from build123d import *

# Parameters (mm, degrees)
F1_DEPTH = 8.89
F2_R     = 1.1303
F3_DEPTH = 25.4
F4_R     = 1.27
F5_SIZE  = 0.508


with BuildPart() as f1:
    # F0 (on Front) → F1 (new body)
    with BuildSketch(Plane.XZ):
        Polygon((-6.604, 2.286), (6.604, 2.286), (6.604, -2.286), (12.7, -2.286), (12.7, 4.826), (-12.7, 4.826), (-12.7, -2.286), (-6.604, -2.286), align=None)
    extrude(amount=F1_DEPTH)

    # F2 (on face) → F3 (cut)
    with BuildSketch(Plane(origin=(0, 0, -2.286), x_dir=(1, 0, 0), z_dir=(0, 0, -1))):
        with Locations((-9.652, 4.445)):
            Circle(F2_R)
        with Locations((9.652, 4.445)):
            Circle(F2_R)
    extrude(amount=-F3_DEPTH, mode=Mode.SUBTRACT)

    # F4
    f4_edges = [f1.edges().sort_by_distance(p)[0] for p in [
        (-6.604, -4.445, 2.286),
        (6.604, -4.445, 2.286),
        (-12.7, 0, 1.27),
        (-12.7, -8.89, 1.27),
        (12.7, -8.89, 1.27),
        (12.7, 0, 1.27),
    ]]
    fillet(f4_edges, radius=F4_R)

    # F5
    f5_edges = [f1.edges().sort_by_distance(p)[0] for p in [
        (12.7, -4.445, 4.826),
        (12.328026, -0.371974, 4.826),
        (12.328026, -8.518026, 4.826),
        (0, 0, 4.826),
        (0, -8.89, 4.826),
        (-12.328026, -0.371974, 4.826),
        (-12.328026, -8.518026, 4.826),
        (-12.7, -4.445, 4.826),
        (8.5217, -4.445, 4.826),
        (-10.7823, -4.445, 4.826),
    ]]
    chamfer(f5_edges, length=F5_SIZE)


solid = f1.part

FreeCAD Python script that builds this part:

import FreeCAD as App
import Part
import Sketcher
Q = App.Units.Quantity


def edges_at(feature, points):
    """Names of the edges that pass closest to the given points."""
    edges = feature.Shape.Edges
    near = lambda p: min(range(len(edges)), key=lambda i: edges[i].distToShape(Part.Vertex(*p))[0])
    return sorted({f"Edge{near(p) + 1}" for p in points})

doc = App.newDocument("Part")
params = doc.addObject("Spreadsheet::Sheet", "Params")
for row, (alias, value) in enumerate([
    ("sketch1_width", "1 in"),
    ("sketch1_width2", "0.52 in"),
    ("sketch1_height", "0.18 in"),
    ("sketch1_height2", "0.28 in"),
    ("pad1_length", "0.35 in"),
    ("sketch2_diameter", "0.089 in"),
    ("pocket1_length", "1 in"),
    ("fillet_radius", "0.05 in"),
    ("chamfer_size", "0.02 in"),
], start=1):
    params.set(f"A{row}", alias)
    params.set(f"B{row}", "=" + value)
    params.setAlias(f"B{row}", alias)

body = doc.addObject("PartDesign::Body", "Body")

sketch1 = body.newObject("Sketcher::SketchObject", "Sketch")
sketch1.AttachmentSupport = (doc.getObject("XZ_Plane"), [""])
sketch1.MapMode = "FlatFace"
sketch1.addGeometry([
    Part.LineSegment(App.Vector(-6.6, 2.3, 0), App.Vector(6.6, 2.3, 0)),
    Part.LineSegment(App.Vector(6.6, 2.3, 0), App.Vector(6.6, -2.3, 0)),
    Part.LineSegment(App.Vector(6.6, -2.3, 0), App.Vector(12.7, -2.3, 0)),
    Part.LineSegment(App.Vector(12.7, -2.3, 0), App.Vector(12.7, 4.8, 0)),
    Part.LineSegment(App.Vector(12.7, 4.8, 0), App.Vector(-12.7, 4.8, 0)),
    Part.LineSegment(App.Vector(-12.7, 4.8, 0), App.Vector(-12.7, -2.3, 0)),
    Part.LineSegment(App.Vector(-12.7, -2.3, 0), App.Vector(-6.6, -2.3, 0)),
    Part.LineSegment(App.Vector(-6.6, -2.3, 0), App.Vector(-6.6, 2.3, 0)),
], False)
sketch1.addConstraint([
    Sketcher.Constraint("Coincident", 0, 2, 1, 1),
    Sketcher.Constraint("Coincident", 1, 2, 2, 1),
    Sketcher.Constraint("Coincident", 2, 2, 3, 1),
    Sketcher.Constraint("Coincident", 3, 2, 4, 1),
    Sketcher.Constraint("Coincident", 4, 2, 5, 1),
    Sketcher.Constraint("Coincident", 5, 2, 6, 1),
    Sketcher.Constraint("Coincident", 6, 2, 7, 1),
    Sketcher.Constraint("Coincident", 7, 2, 0, 1),
    Sketcher.Constraint("Horizontal", 0),
    Sketcher.Constraint("Vertical", 1),
    Sketcher.Constraint("Horizontal", 2),
    Sketcher.Constraint("Vertical", 3),
    Sketcher.Constraint("Horizontal", 4),
    Sketcher.Constraint("Vertical", 5),
    Sketcher.Constraint("Horizontal", 6),
    Sketcher.Constraint("Vertical", 7),
    Sketcher.Constraint("Symmetric", 0, 2, 6, 2, -1, 1),
    Sketcher.Constraint("Symmetric", 2, 2, 5, 2, -2),
    Sketcher.Constraint("DistanceX", 4, 2, 4, 1, Q("1 in")),
    Sketcher.Constraint("DistanceX", 0, 1, 0, 2, Q("0.52 in")),
    Sketcher.Constraint("DistanceY", 1, 2, 1, 1, Q("0.18 in")),
    Sketcher.Constraint("DistanceY", 3, 1, 3, 2, Q("0.28 in")),
])
sketch1.setExpression("Constraints[18]", "Params.sketch1_width")
sketch1.setExpression("Constraints[19]", "Params.sketch1_width2")
sketch1.setExpression("Constraints[20]", "Params.sketch1_height")
sketch1.setExpression("Constraints[21]", "Params.sketch1_height2")
pad1 = body.newObject("PartDesign::Pad", "Pad")
pad1.Profile = sketch1
pad1.setExpression("Length", "Params.pad1_length")

sketch2 = body.newObject("Sketcher::SketchObject", "Sketch001")
sketch2.AttachmentSupport = (doc.getObject("XY_Plane"), [""])
sketch2.MapMode = "FlatFace"
sketch2.AttachmentOffset = App.Placement(App.Vector(0, 0, -0.09 * 25.4), App.Rotation())
sketch2.addGeometry([
    Part.Circle(App.Vector(-9.7, -4.4, 0), App.Vector(0, 0, 1), 1.1),
    Part.Circle(App.Vector(9.7, -4.4, 0), App.Vector(0, 0, 1), 1.1),
], False)
sketch2.addConstraint([
    Sketcher.Constraint("Equal", 0, 1),
    Sketcher.Constraint("Symmetric", 0, 3, 1, 3, -2),
    Sketcher.Constraint("Diameter", 0, Q("0.089 in")),
    Sketcher.Constraint("DistanceX", 0, 3, -1, 1, Q("0.38 in")),
    Sketcher.Constraint("DistanceY", 0, 3, -1, 1, Q("0.175 in")),
])
sketch2.setExpression("Constraints[2]", "Params.sketch2_diameter")
pocket1 = body.newObject("PartDesign::Pocket", "Pocket")
pocket1.Profile = sketch2
pocket1.setExpression("Length", "Params.pocket1_length")
pocket1.Reversed = True
doc.recompute()

fillet = body.newObject("PartDesign::Fillet", "Fillet")
fillet.Base = (pocket1, edges_at(pocket1, [
    (-6.604, -4.445, 2.286),
    (6.604, -4.445, 2.286),
    (-12.7, 0, 1.27),
    (-12.7, -8.89, 1.27),
    (12.7, -8.89, 1.27),
    (12.7, 0, 1.27),
]))
fillet.setExpression("Radius", "Params.fillet_radius")
doc.recompute()

chamfer = body.newObject("PartDesign::Chamfer", "Chamfer")
chamfer.Base = (fillet, edges_at(fillet, [
    (12.7, -4.445, 4.826),
    (12.328, -0.372, 4.826),
    (12.328, -8.518, 4.826),
    (0, 0, 4.826),
    (0, -8.89, 4.826),
    (-12.328, -0.372, 4.826),
    (-12.328, -8.518, 4.826),
    (-12.7, -4.445, 4.826),
    (8.522, -4.445, 4.826),
    (-10.782, -4.445, 4.826),
]))
chamfer.setExpression("Size", "Params.chamfer_size")

doc.recompute()
